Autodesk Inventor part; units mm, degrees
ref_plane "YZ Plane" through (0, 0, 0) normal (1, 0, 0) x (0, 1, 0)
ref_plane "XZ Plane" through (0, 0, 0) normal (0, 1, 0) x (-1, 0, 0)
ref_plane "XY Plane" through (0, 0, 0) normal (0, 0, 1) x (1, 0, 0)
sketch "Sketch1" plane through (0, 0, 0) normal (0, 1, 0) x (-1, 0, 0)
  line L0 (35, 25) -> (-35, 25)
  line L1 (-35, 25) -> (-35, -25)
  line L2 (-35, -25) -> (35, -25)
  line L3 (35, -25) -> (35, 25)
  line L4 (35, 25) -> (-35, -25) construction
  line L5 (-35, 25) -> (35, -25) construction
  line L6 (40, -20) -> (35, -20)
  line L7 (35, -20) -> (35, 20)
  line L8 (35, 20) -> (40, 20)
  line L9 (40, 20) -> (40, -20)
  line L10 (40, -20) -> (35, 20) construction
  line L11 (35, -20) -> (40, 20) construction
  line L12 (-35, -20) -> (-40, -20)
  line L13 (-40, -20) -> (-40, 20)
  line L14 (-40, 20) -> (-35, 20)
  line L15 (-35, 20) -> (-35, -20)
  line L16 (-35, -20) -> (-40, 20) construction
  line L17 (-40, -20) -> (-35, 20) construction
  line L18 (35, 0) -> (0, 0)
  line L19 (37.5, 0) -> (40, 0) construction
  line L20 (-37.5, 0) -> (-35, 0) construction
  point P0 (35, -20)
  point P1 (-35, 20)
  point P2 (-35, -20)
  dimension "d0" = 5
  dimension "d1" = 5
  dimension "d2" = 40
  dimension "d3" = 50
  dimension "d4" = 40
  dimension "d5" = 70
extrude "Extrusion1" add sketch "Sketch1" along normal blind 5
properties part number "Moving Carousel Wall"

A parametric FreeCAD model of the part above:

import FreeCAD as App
import Part
import Sketcher

V = App.Vector

doc = App.newDocument("Part")
body = doc.addObject("PartDesign::Body", "Body")

sketch1 = doc.addObject("Sketcher::SketchObject", "Sketch")
body.addObject(sketch1)
sketch1.AttachmentSupport = (doc.XZ_Plane, [""])
sketch1.MapMode = "FlatFace"
sketch1.addGeometry(Part.LineSegment(V(-35, 20, 0), V(-35, 25, 0)), False)
sketch1.addGeometry(Part.LineSegment(V(-35, 25, 0), V(35, 25, 0)), False)
sketch1.addGeometry(Part.LineSegment(V(35, 25, 0), V(35, 20, 0)), False)
sketch1.addGeometry(Part.LineSegment(V(35, 20, 0), V(40, 20, 0)), False)
sketch1.addGeometry(Part.LineSegment(V(40, 20, 0), V(40, -20, 0)), False)
sketch1.addGeometry(Part.LineSegment(V(40, -20, 0), V(35, -20, 0)), False)
sketch1.addGeometry(Part.LineSegment(V(35, -20, 0), V(35, -25, 0)), False)
sketch1.addGeometry(Part.LineSegment(V(35, -25, 0), V(-35, -25, 0)), False)
sketch1.addGeometry(Part.LineSegment(V(-35, -25, 0), V(-35, -20, 0)), False)
sketch1.addGeometry(Part.LineSegment(V(-35, -20, 0), V(-40, -20, 0)), False)
sketch1.addGeometry(Part.LineSegment(V(-40, -20, 0), V(-40, 20, 0)), False)
sketch1.addGeometry(Part.LineSegment(V(-40, 20, 0), V(-35, 20, 0)), False)
sketch1.addConstraint(Sketcher.Constraint("Coincident", 0, 2, 1, 1))
sketch1.addConstraint(Sketcher.Constraint("Coincident", 1, 2, 2, 1))
sketch1.addConstraint(Sketcher.Constraint("Coincident", 2, 2, 3, 1))
sketch1.addConstraint(Sketcher.Constraint("Coincident", 3, 2, 4, 1))
sketch1.addConstraint(Sketcher.Constraint("Coincident", 4, 2, 5, 1))
sketch1.addConstraint(Sketcher.Constraint("Coincident", 5, 2, 6, 1))
sketch1.addConstraint(Sketcher.Constraint("Coincident", 6, 2, 7, 1))
sketch1.addConstraint(Sketcher.Constraint("Coincident", 7, 2, 8, 1))
sketch1.addConstraint(Sketcher.Constraint("Coincident", 8, 2, 9, 1))
sketch1.addConstraint(Sketcher.Constraint("Coincident", 9, 2, 10, 1))
sketch1.addConstraint(Sketcher.Constraint("Coincident", 10, 2, 11, 1))
sketch1.addConstraint(Sketcher.Constraint("Coincident", 11, 2, 0, 1))
sketch1.addConstraint(Sketcher.Constraint("Vertical", 0))
sketch1.addConstraint(Sketcher.Constraint("Horizontal", 1))
sketch1.addConstraint(Sketcher.Constraint("Vertical", 2))
sketch1.addConstraint(Sketcher.Constraint("Horizontal", 3))
sketch1.addConstraint(Sketcher.Constraint("Vertical", 4))
sketch1.addConstraint(Sketcher.Constraint("Horizontal", 5))
sketch1.addConstraint(Sketcher.Constraint("Vertical", 6))
sketch1.addConstraint(Sketcher.Constraint("Horizontal", 7))
sketch1.addConstraint(Sketcher.Constraint("Vertical", 8))
sketch1.addConstraint(Sketcher.Constraint("Horizontal", 9))
sketch1.addConstraint(Sketcher.Constraint("Vertical", 10))
sketch1.addConstraint(Sketcher.Constraint("Horizontal", 11))
sketch1.addConstraint(Sketcher.Constraint("Symmetric", 0, 2, 6, 2, -1, 1))
sketch1.addConstraint(Sketcher.Constraint("Symmetric", 2, 2, 8, 2, -1, 1))
sketch1.addConstraint(Sketcher.Constraint("Symmetric", 4, 2, 10, 2, -1, 1))
sketch1.addConstraint(Sketcher.Constraint("Symmetric", 5, 2, 8, 2, -2))
sketch1.addConstraint(Sketcher.Constraint("Equal", 11, 0))
sketch1.addConstraint(Sketcher.Constraint("DistanceX", 1, 1, 1, 2, 70.0))
sketch1.addConstraint(Sketcher.Constraint("DistanceX", 3, 1, 3, 2, 5.0))
sketch1.addConstraint(Sketcher.Constraint("DistanceY", 4, 2, 4, 1, 40.0))
pad1 = doc.addObject("PartDesign::Pad", "Pad")
body.addObject(pad1)
pad1.Profile = sketch1
pad1.Length = 5
pad1.Reversed = True

doc.recompute()
